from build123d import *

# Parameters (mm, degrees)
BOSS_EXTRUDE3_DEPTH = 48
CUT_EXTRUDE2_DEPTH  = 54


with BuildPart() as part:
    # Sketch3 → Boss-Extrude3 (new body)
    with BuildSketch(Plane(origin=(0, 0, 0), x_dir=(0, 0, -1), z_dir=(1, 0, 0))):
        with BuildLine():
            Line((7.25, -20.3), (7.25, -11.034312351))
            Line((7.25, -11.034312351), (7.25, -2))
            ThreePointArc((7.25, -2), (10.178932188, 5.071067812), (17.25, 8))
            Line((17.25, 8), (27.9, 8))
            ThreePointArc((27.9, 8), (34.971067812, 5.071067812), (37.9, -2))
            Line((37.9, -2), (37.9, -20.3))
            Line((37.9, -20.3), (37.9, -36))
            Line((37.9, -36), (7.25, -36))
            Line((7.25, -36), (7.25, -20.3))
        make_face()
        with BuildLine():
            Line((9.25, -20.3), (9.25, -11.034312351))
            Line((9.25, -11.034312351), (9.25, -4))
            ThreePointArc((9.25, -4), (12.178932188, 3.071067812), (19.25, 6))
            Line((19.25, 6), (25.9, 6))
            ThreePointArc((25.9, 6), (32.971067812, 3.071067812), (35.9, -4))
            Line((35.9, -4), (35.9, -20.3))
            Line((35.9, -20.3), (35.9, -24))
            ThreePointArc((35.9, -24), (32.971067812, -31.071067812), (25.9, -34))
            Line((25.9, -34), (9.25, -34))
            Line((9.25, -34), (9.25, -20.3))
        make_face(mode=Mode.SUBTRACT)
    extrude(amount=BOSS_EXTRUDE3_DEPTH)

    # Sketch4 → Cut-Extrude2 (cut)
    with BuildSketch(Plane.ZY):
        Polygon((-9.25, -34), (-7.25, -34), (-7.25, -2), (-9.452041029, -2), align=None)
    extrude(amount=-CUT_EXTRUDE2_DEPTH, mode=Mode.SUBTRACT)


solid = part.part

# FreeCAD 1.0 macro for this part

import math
import FreeCAD as App
import Part
import Sketcher
Q = App.Units.Quantity

doc = App.newDocument("Part")
body = doc.addObject("PartDesign::Body", "Body")

sketch1 = doc.addObject("Sketcher::SketchObject", "Sketch")
body.addObject(sketch1)
sketch1.AttachmentSupport = (doc.YZ_Plane, [""])
sketch1.MapMode = "FlatFace"
sketch1.addGeometry([
    Part.ArcOfCircle(Part.Circle(App.Vector(-2, -17, 0), App.Vector(0, 0, 1), 10), math.radians(0), math.radians(90)),
    Part.LineSegment(App.Vector(-2, -7, 0), App.Vector(-36, -7, 0)),
    Part.LineSegment(App.Vector(-36, -7, 0), App.Vector(-36, -38, 0)),
    Part.LineSegment(App.Vector(-36, -38, 0), App.Vector(-2, -38, 0)),
    Part.ArcOfCircle(Part.Circle(App.Vector(-2, -28, 0), App.Vector(0, 0, 1), 10), math.radians(-90), math.radians(0)),
    Part.LineSegment(App.Vector(8, -28, 0), App.Vector(8, -17, 0)),
    Part.ArcOfCircle(Part.Circle(App.Vector(-4, -19, 0), App.Vector(0, 0, 1), 10), math.radians(0), math.radians(90)),
    Part.LineSegment(App.Vector(6, -19, 0), App.Vector(6, -26, 0)),
    Part.ArcOfCircle(Part.Circle(App.Vector(-4, -26, 0), App.Vector(0, 0, 1), 10), math.radians(-90), math.radians(0)),
    Part.LineSegment(App.Vector(-4, -36, 0), App.Vector(-24, -36, 0)),
    Part.ArcOfCircle(Part.Circle(App.Vector(-24, -26, 0), App.Vector(0, 0, 1), 10), math.radians(180), math.radians(270)),
    Part.LineSegment(App.Vector(-34, -26, 0), App.Vector(-34, -9, 0)),
    Part.LineSegment(App.Vector(-34, -9, 0), App.Vector(-4, -9, 0)),
], False)
sketch1.addConstraint([
    Sketcher.Constraint("Tangent", 0, 2, 1, 1),
    Sketcher.Constraint("Coincident", 1, 2, 2, 1),
    Sketcher.Constraint("Coincident", 2, 2, 3, 1),
    Sketcher.Constraint("Tangent", 3, 2, 4, 1),
    Sketcher.Constraint("Tangent", 4, 2, 5, 1),
    Sketcher.Constraint("Tangent", 5, 2, 0, 1),
    Sketcher.Constraint("Tangent", 6, 1, 7, 1),
    Sketcher.Constraint("Tangent", 7, 2, 8, 2),
    Sketcher.Constraint("Tangent", 8, 1, 9, 1),
    Sketcher.Constraint("Tangent", 9, 2, 10, 2),
    Sketcher.Constraint("Tangent", 10, 1, 11, 1),
    Sketcher.Constraint("Coincident", 11, 2, 12, 1),
    Sketcher.Constraint("Tangent", 12, 2, 6, 2),
    Sketcher.Constraint("Horizontal", 1),
    Sketcher.Constraint("Vertical", 2),
    Sketcher.Constraint("Horizontal", 3),
    Sketcher.Constraint("Vertical", 5),
    Sketcher.Constraint("Vertical", 7),
    Sketcher.Constraint("Horizontal", 9),
    Sketcher.Constraint("Vertical", 11),
    Sketcher.Constraint("Horizontal", 12),
    Sketcher.Constraint("Equal", 0, 4),
    Sketcher.Constraint("Equal", 4, 6),
    Sketcher.Constraint("Equal", 6, 8),
    Sketcher.Constraint("Equal", 8, 10),
    Sketcher.Constraint("Radius", 0, Q("10 mm")),
    Sketcher.Constraint("DistanceX", 1, 2, 1, 1, Q("34 mm")),
    Sketcher.Constraint("DistanceX", 9, 2, 9, 1, Q("20 mm")),
    Sketcher.Constraint("DistanceX", 0, 3, -1, 1, Q("2 mm")),
    Sketcher.Constraint("DistanceX", 6, 3, -1, 1, Q("4 mm")),
    Sketcher.Constraint("DistanceY", 6, 3, 0, 3, Q("2 mm")),
    Sketcher.Constraint("DistanceY", 4, 3, 8, 3, Q("2 mm")),
    Sketcher.Constraint("DistanceY", 2, 2, 2, 1, Q("30.65 mm")),
    Sketcher.Constraint("DistanceY", 4, 3, -1, 1, Q("27.9 mm")),
])
pad1 = doc.addObject("PartDesign::Pad", "Pad")
body.addObject(pad1)
pad1.Profile = sketch1
pad1.Length = 48

sketch2 = doc.addObject("Sketcher::SketchObject", "Sketch001")
body.addObject(sketch2)
sketch2.AttachmentSupport = (doc.YZ_Plane, [""])
sketch2.MapMode = "FlatFace"
sketch2.addGeometry([
    Part.LineSegment(App.Vector(-34, -9.2, 0), App.Vector(-34, -7.2, 0)),
    Part.LineSegment(App.Vector(-34, -7.2, 0), App.Vector(-2, -7.2, 0)),
    Part.LineSegment(App.Vector(-2, -7.2, 0), App.Vector(-2, -9.5, 0)),
    Part.LineSegment(App.Vector(-2, -9.5, 0), App.Vector(-34, -9.2, 0)),
], False)
sketch2.addConstraint([
    Sketcher.Constraint("Coincident", 0, 2, 1, 1),
    Sketcher.Constraint("Coincident", 1, 2, 2, 1),
    Sketcher.Constraint("Coincident", 2, 2, 3, 1),
    Sketcher.Constraint("Coincident", 3, 2, 0, 1),
    Sketcher.Constraint("Vertical", 0),
    Sketcher.Constraint("Horizontal", 1),
    Sketcher.Constraint("Vertical", 2),
    Sketcher.Constraint("DistanceX", 1, 1, 1, 2, Q("32 mm")),
    Sketcher.Constraint("DistanceY", 0, 1, 0, 2, Q("2 mm")),
    Sketcher.Constraint("DistanceX", 0, 2, -1, 1, Q("34 mm")),
    Sketcher.Constraint("DistanceY", 0, 2, -1, 1, Q("7.25 mm")),
    Sketcher.Constraint("DistanceY", 2, 2, 2, 1, Q("2.202041 mm")),
])
pocket1 = doc.addObject("PartDesign::Pocket", "Pocket")
body.addObject(pocket1)
pocket1.Profile = sketch2
pocket1.Length = 54
pocket1.Reversed = True

doc.recompute()
